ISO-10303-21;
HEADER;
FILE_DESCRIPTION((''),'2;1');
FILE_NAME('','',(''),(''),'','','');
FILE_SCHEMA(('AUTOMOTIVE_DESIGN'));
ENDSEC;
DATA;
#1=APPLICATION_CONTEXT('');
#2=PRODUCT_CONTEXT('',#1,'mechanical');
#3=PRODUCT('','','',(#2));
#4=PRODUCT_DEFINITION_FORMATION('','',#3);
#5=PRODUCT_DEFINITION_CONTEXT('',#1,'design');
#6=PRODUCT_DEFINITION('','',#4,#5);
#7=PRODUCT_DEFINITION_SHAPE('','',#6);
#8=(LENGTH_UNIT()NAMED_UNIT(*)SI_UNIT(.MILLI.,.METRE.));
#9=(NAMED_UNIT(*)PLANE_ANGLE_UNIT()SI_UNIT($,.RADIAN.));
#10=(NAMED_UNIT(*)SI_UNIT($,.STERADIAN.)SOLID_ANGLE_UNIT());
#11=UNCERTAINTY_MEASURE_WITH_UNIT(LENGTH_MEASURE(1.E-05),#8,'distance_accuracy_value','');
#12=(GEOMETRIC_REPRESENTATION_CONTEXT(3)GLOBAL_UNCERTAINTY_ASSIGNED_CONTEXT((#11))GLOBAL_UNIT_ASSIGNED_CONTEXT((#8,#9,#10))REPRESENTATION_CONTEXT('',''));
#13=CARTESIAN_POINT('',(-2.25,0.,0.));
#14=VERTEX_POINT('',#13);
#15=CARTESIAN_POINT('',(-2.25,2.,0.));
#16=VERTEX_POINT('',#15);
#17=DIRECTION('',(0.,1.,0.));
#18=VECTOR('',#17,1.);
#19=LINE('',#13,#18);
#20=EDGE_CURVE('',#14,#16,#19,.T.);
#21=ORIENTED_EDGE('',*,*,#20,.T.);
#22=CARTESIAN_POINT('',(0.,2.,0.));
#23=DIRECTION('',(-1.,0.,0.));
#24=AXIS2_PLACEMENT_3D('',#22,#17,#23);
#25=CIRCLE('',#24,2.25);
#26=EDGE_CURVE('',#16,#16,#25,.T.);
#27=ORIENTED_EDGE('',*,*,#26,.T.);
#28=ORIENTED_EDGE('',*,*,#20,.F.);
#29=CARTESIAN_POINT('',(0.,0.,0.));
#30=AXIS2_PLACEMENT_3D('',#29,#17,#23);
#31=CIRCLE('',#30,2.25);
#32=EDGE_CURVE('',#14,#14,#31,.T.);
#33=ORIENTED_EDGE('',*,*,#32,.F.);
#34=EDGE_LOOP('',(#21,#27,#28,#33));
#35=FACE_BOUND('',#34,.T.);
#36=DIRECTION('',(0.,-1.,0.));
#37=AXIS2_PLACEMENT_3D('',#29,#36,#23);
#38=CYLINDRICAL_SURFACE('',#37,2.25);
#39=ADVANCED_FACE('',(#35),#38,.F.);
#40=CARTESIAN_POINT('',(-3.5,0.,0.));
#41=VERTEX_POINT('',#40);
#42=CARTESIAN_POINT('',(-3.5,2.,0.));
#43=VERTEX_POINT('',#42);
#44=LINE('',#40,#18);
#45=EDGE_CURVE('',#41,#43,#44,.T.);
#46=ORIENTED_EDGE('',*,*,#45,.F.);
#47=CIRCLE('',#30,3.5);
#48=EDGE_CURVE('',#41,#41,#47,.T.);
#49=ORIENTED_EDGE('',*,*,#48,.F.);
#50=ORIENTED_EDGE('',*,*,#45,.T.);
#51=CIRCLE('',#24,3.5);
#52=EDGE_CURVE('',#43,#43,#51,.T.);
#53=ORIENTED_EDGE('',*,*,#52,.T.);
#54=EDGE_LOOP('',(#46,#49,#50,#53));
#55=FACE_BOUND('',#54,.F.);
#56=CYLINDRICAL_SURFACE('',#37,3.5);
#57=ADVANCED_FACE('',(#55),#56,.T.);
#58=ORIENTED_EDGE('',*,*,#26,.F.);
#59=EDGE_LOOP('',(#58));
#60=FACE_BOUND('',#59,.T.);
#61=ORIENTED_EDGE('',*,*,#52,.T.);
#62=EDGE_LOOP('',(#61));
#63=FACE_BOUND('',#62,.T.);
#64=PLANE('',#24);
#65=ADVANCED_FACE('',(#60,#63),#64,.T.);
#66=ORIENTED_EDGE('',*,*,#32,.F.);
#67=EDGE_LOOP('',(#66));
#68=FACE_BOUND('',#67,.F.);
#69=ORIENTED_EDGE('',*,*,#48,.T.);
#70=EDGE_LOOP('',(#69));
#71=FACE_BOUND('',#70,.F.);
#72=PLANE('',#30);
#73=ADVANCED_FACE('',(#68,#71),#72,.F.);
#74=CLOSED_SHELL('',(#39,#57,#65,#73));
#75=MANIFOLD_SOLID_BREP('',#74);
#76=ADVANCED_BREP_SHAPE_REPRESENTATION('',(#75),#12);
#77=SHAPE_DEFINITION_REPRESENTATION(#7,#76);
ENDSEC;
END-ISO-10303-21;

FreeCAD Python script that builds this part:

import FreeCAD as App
import Part
import Sketcher
Q = App.Units.Quantity

doc = App.newDocument("Part")
params = doc.addObject("Spreadsheet::Sheet", "Params")
for row, (alias, value) in enumerate([
    ("sketch1_diameter", "7 mm"),
    ("sketch1_diameter2", "4.5 mm"),
    ("pad1_length", "2 mm"),
], start=1):
    params.set(f"A{row}", alias)
    params.set(f"B{row}", "=" + value)
    params.setAlias(f"B{row}", alias)

body = doc.addObject("PartDesign::Body", "Body")

# Sketch on XZ plane
sketch1 = body.newObject("Sketcher::SketchObject", "Sketch")
sketch1.AttachmentSupport = (doc.getObject("XZ_Plane"), [""])
sketch1.MapMode = "FlatFace"
sketch1.addGeometry([
    Part.Circle(App.Vector(0, 0, 0), App.Vector(0, 0, 1), 3.5),
    Part.Circle(App.Vector(0, 0, 0), App.Vector(0, 0, 1), 2.25),
], False)
sketch1.addConstraint([
    Sketcher.Constraint("Coincident", 0, 3, -1, 1),
    Sketcher.Constraint("Coincident", 1, 3, -1, 1),
    Sketcher.Constraint("Diameter", 0, Q("7 mm")),
    Sketcher.Constraint("Diameter", 1, Q("4.5 mm")),
])
sketch1.setExpression("Constraints[2]", "Params.sketch1_diameter")
sketch1.setExpression("Constraints[3]", "Params.sketch1_diameter2")
pad1 = body.newObject("PartDesign::Pad", "Pad")
pad1.Profile = sketch1
pad1.setExpression("Length", "Params.pad1_length")
pad1.Reversed = True

doc.recompute()
